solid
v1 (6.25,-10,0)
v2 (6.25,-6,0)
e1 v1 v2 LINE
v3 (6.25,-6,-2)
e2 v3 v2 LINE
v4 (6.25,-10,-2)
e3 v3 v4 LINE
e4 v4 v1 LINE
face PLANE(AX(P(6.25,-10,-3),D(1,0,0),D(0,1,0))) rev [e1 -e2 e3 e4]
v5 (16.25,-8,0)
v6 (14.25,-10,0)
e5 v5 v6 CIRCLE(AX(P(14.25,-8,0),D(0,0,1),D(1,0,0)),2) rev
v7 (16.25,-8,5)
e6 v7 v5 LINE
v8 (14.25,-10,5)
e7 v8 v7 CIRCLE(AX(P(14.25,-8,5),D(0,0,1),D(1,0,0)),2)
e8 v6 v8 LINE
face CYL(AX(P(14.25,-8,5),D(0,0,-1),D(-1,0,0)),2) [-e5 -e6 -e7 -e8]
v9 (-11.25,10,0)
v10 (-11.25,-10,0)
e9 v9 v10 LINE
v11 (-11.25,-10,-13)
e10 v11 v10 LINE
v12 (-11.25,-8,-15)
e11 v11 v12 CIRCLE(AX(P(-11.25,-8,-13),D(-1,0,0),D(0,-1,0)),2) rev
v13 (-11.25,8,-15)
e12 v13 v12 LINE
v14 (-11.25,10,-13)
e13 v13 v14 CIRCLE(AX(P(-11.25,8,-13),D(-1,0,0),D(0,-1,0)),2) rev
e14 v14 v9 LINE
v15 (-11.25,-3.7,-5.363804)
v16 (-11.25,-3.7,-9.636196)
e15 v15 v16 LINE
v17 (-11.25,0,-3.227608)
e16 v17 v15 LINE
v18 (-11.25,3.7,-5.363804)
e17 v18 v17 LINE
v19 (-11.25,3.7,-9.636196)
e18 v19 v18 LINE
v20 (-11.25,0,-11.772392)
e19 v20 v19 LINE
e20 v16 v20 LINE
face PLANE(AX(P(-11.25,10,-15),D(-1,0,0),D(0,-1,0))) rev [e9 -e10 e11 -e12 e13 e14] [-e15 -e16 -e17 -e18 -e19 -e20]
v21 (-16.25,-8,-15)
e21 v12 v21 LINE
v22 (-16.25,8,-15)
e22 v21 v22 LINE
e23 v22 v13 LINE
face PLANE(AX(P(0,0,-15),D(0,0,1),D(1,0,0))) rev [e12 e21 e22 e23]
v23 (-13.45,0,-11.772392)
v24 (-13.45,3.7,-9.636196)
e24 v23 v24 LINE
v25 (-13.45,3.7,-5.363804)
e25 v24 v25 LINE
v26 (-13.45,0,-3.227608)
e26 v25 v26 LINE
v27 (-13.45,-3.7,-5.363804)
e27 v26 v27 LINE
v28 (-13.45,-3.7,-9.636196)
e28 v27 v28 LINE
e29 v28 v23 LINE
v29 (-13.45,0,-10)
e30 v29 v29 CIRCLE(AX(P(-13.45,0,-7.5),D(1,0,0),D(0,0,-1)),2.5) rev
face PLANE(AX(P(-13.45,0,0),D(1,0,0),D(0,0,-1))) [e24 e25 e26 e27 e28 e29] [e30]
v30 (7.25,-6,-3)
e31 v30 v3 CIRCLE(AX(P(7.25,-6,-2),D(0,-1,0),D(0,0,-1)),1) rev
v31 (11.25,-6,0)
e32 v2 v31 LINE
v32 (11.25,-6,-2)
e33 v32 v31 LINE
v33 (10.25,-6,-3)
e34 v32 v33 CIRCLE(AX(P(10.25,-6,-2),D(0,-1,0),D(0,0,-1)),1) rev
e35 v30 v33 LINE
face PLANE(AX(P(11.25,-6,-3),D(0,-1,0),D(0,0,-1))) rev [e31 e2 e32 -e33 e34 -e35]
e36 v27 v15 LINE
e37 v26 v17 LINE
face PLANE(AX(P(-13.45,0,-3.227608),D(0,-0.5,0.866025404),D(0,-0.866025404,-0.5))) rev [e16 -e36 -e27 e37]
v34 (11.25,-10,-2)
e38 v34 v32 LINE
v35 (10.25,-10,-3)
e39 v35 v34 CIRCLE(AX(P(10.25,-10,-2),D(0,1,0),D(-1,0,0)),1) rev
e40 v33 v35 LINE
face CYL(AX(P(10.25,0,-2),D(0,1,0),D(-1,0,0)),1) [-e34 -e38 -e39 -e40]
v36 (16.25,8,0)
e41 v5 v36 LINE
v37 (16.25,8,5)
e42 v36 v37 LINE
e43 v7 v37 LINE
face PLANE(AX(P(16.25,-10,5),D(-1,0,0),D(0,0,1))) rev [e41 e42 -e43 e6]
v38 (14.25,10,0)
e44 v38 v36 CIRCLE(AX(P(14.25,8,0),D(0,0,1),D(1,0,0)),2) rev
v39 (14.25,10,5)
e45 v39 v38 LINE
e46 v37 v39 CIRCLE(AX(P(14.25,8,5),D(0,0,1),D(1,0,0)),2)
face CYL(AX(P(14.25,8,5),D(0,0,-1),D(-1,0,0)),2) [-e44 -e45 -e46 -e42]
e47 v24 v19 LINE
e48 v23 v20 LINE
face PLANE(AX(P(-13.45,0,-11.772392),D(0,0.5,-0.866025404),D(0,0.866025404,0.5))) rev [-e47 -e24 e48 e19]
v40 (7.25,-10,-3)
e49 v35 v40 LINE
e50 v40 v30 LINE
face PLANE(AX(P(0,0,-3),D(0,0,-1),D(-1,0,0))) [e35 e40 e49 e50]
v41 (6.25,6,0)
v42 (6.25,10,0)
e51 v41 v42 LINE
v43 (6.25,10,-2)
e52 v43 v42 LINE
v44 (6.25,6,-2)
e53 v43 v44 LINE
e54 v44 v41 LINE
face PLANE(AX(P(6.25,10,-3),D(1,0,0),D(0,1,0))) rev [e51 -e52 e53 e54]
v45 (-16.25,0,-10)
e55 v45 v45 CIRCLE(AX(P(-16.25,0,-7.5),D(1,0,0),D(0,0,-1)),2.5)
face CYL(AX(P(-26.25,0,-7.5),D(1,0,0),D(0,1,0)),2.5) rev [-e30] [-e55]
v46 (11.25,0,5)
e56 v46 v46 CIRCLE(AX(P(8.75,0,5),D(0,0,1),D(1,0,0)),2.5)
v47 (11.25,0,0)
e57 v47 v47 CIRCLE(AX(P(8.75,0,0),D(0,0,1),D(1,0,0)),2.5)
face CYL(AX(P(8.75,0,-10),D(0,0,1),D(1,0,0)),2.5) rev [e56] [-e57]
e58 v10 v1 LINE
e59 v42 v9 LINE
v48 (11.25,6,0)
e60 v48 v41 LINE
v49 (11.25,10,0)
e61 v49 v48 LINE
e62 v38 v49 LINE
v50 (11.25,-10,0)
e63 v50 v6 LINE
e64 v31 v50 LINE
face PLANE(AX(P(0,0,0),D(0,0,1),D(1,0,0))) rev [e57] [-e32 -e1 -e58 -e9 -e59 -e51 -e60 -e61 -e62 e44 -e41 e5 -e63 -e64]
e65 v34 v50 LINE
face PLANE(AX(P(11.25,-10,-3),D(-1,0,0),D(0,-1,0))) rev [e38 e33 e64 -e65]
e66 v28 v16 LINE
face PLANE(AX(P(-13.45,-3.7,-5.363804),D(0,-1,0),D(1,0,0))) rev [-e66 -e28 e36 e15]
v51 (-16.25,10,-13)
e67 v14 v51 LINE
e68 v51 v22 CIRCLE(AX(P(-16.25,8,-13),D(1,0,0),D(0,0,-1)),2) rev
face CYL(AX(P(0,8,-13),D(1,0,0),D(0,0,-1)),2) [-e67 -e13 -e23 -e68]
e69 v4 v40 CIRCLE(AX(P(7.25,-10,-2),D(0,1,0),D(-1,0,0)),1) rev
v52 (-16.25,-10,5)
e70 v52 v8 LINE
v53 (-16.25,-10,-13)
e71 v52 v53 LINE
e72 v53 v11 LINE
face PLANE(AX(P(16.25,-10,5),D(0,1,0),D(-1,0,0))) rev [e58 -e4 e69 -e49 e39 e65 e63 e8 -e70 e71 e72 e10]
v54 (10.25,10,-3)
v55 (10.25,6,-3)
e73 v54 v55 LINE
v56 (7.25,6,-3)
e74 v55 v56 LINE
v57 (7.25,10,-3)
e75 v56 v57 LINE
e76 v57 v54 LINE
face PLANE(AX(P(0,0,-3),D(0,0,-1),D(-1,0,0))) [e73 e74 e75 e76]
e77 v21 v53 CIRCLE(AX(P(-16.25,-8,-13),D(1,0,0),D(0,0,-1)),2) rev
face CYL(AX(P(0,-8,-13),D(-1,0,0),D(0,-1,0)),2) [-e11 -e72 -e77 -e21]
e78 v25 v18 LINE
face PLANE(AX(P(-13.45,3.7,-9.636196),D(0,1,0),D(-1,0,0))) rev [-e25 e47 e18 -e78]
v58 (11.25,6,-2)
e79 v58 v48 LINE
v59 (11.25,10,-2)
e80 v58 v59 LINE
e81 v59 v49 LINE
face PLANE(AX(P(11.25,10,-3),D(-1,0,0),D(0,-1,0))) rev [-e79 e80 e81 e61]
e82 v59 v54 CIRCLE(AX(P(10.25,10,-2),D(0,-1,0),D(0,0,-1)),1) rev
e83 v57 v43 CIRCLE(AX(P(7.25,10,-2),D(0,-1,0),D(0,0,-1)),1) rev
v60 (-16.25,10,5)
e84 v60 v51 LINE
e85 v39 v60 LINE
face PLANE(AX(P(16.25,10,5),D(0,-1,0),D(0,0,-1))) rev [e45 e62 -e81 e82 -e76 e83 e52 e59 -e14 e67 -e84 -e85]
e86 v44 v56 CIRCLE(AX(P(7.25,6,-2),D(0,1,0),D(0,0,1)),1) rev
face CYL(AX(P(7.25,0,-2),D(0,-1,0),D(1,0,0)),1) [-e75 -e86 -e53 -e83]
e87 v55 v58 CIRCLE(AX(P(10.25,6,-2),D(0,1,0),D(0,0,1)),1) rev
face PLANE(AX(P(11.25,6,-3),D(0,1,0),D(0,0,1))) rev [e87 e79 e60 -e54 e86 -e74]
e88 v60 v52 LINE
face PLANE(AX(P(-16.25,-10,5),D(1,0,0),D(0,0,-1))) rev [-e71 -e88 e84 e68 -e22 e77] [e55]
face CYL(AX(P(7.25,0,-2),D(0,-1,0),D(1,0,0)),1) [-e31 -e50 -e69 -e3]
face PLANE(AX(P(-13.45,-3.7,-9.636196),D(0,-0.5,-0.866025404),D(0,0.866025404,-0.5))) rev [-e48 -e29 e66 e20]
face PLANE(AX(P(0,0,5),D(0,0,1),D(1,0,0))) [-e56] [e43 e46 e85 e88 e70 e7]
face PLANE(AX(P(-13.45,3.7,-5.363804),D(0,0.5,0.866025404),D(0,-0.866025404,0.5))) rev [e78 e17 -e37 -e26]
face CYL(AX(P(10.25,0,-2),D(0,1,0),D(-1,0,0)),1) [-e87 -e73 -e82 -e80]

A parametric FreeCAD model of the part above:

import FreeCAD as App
import Part
import Sketcher

V = App.Vector
Q = App.Units.Quantity


def edges_at(feature, points):
    """Names of the edges that pass closest to the given points."""
    edges = feature.Shape.Edges
    near = lambda p: min(range(len(edges)), key=lambda i: edges[i].distToShape(Part.Vertex(*p))[0])
    return sorted({f"Edge{near(p) + 1}" for p in points})


def add_polygon(sketch, points):
    """Adds a closed chain of lines whose ends are joined by coincident constraints."""
    first, n = sketch.GeometryCount, len(points)
    for a, b in zip(points, points[1:] + points[:1]):
        sketch.addGeometry(Part.LineSegment(App.Vector(*a, 0), App.Vector(*b, 0)), False)
    for i in range(n):
        sketch.addConstraint(Sketcher.Constraint("Coincident", first + i, 2, first + (i + 1) % n, 1))

doc = App.newDocument("Part")
params = doc.addObject("Spreadsheet::Sheet", "Params")
for row, (alias, value) in enumerate([
    ("sketch1_height", "20 mm"),
    ("sketch1_width", "32.5 mm"),
    ("pad1_length", "5 mm"),
    ("sketch2_width", "5 mm"),
    ("sketch2_height", "20 mm"),
    ("pad2_length", "15 mm"),
    ("sketch3_diameter", "5 mm"),
    ("pocket1_length", "15 mm"),
    ("sketch4_diameter", "5 mm"),
    ("pocket2_length", "15 mm"),
    ("sketch5_width", "5 mm"),
    ("sketch5_height", "4 mm"),
    ("pad3_length", "3 mm"),
    ("fillet_radius", "1 mm"),
    ("fillet2_radius", "2 mm"),
    ("pocket3_length", "2.2 mm"),
], start=1):
    params.set(f"A{row}", alias)
    params.set(f"B{row}", "=" + value)
    params.setAlias(f"B{row}", alias)

body = doc.addObject("PartDesign::Body", "Body")

# Sketch on XY plane
sketch1 = body.newObject("Sketcher::SketchObject", "Sketch")
sketch1.AttachmentSupport = (doc.getObject("XY_Plane"), [""])
sketch1.MapMode = "FlatFace"
add_polygon(sketch1, [(-16, 10), (-16, -10), (16, -10), (16, 10)])  # lines 0-3
sketch1.addConstraint(Sketcher.Constraint("Vertical", 0))
sketch1.addConstraint(Sketcher.Constraint("Horizontal", 1))
sketch1.addConstraint(Sketcher.Constraint("Vertical", 2))
sketch1.addConstraint(Sketcher.Constraint("Horizontal", 3))
sketch1.addConstraint(Sketcher.Constraint("Symmetric", 0, 2, 2, 2, -1, 1))
sketch1.addConstraint(Sketcher.Constraint("DistanceY", 0, 2, 0, 1, Q("20 mm")))
sketch1.addConstraint(Sketcher.Constraint("DistanceX", 1, 1, 1, 2, Q("32.5 mm")))
sketch1.setExpression("Constraints[9]", "Params.sketch1_height")
sketch1.setExpression("Constraints[10]", "Params.sketch1_width")
pad1 = body.newObject("PartDesign::Pad", "Pad")
pad1.Profile = sketch1
pad1.setExpression("Length", "Params.pad1_length")

# Sketch on XY plane
sketch2 = body.newObject("Sketcher::SketchObject", "Sketch001")
sketch2.AttachmentSupport = (doc.getObject("XY_Plane"), [""])
sketch2.MapMode = "FlatFace"
add_polygon(sketch2, [(-11, 10), (-11, -10), (-16, -10), (-16, 10)])  # lines 0-3
sketch2.addConstraint(Sketcher.Constraint("Vertical", 0))
sketch2.addConstraint(Sketcher.Constraint("Horizontal", 1))
sketch2.addConstraint(Sketcher.Constraint("Vertical", 2))
sketch2.addConstraint(Sketcher.Constraint("Horizontal", 3))
sketch2.addConstraint(Sketcher.Constraint("DistanceX", 1, 2, 1, 1, Q("5 mm")))
sketch2.addConstraint(Sketcher.Constraint("DistanceY", 0, 2, 0, 1, Q("20 mm")))
sketch2.addConstraint(Sketcher.Constraint("DistanceY", 0, 2, -1, 1, Q("10 mm")))
sketch2.addConstraint(Sketcher.Constraint("DistanceX", 0, 2, -1, 1, Q("11.25 mm")))
sketch2.setExpression("Constraints[8]", "Params.sketch2_width")
sketch2.setExpression("Constraints[9]", "Params.sketch2_height")
pad2 = body.newObject("PartDesign::Pad", "Pad001")
pad2.Profile = sketch2
pad2.setExpression("Length", "Params.pad2_length")
pad2.Reversed = True

# Sketch on YZ plane
sketch3 = body.newObject("Sketcher::SketchObject", "Sketch002")
sketch3.AttachmentSupport = (doc.getObject("YZ_Plane"), [""])
sketch3.MapMode = "FlatFace"
sketch3.AttachmentOffset = App.Placement(V(0, 0, -11.25), App.Rotation())
sketch3.addGeometry(Part.Circle(V(0, -7.5, 0), V(0, 0, 1), 2.5), False)
sketch3.addConstraint(Sketcher.Constraint("PointOnObject", 0, 3, -2))
sketch3.addConstraint(Sketcher.Constraint("Diameter", 0, Q("5 mm")))
sketch3.addConstraint(Sketcher.Constraint("DistanceY", 0, 3, -1, 1, Q("7.5 mm")))
sketch3.setExpression("Constraints[1]", "Params.sketch3_diameter")
pocket1 = body.newObject("PartDesign::Pocket", "Pocket")
pocket1.Profile = sketch3
pocket1.setExpression("Length", "Params.pocket1_length")

# Sketch on XY plane
sketch4 = body.newObject("Sketcher::SketchObject", "Sketch003")
sketch4.AttachmentSupport = (doc.getObject("XY_Plane"), [""])
sketch4.MapMode = "FlatFace"
sketch4.AttachmentOffset = App.Placement(V(0, 0, 5), App.Rotation())
sketch4.addGeometry(Part.Circle(V(8.8, 0, 0), V(0, 0, 1), 2.5), False)
sketch4.addConstraint(Sketcher.Constraint("PointOnObject", 0, 3, -1))
sketch4.addConstraint(Sketcher.Constraint("Diameter", 0, Q("5 mm")))
sketch4.addConstraint(Sketcher.Constraint("DistanceX", -1, 1, 0, 3, Q("8.75 mm")))
sketch4.setExpression("Constraints[1]", "Params.sketch4_diameter")
pocket2 = body.newObject("PartDesign::Pocket", "Pocket001")
pocket2.Profile = sketch4
pocket2.setExpression("Length", "Params.pocket2_length")

# Sketch on XY plane
sketch5 = body.newObject("Sketcher::SketchObject", "Sketch004")
sketch5.AttachmentSupport = (doc.getObject("XY_Plane"), [""])
sketch5.MapMode = "FlatFace"
add_polygon(sketch5, [(11.2, 10), (11.2, 6), (6.2, 6), (6.2, 10)])  # lines 0-3
add_polygon(sketch5, [(11.2, -6), (11.2, -10), (6.2, -10), (6.2, -6)])  # lines 4-7
sketch5.addConstraint(Sketcher.Constraint("Vertical", 0))
sketch5.addConstraint(Sketcher.Constraint("Horizontal", 1))
sketch5.addConstraint(Sketcher.Constraint("Vertical", 2))
sketch5.addConstraint(Sketcher.Constraint("Horizontal", 3))
sketch5.addConstraint(Sketcher.Constraint("Vertical", 4))
sketch5.addConstraint(Sketcher.Constraint("Horizontal", 5))
sketch5.addConstraint(Sketcher.Constraint("Vertical", 6))
sketch5.addConstraint(Sketcher.Constraint("Horizontal", 7))
sketch5.addConstraint(Sketcher.Constraint("Symmetric", 3, 2, 4, 2, -1))
sketch5.addConstraint(Sketcher.Constraint("Symmetric", 1, 2, 6, 2, -1))
sketch5.addConstraint(Sketcher.Constraint("DistanceX", 1, 2, 1, 1, Q("5 mm")))
sketch5.addConstraint(Sketcher.Constraint("DistanceY", 0, 2, 0, 1, Q("4 mm")))
sketch5.addConstraint(Sketcher.Constraint("DistanceY", -1, 1, 0, 2, Q("6 mm")))
sketch5.addConstraint(Sketcher.Constraint("DistanceX", -1, 1, 0, 2, Q("11.25 mm")))
sketch5.setExpression("Constraints[18]", "Params.sketch5_width")
sketch5.setExpression("Constraints[19]", "Params.sketch5_height")
pad3 = body.newObject("PartDesign::Pad", "Pad002")
pad3.Profile = sketch5
pad3.setExpression("Length", "Params.pad3_length")
pad3.Reversed = True
doc.recompute()

fillet = body.newObject("PartDesign::Fillet", "Fillet")
fillet.Base = (pad3, edges_at(pad3, [
    (11.25, 8, -3),
    (6.25, 8, -3),
    (6.25, -8, -3),
    (11.25, -8, -3),
]))
fillet.setExpression("Radius", "Params.fillet_radius")
doc.recompute()

fillet2 = body.newObject("PartDesign::Fillet", "Fillet001")
fillet2.Base = (fillet, edges_at(fillet, [
    (-13.75, 10, -15),
    (-13.75, -10, -15),
    (16.25, 10, 2.5),
    (16.25, -10, 2.5),
]))
fillet2.setExpression("Radius", "Params.fillet2_radius")

# Sketch on YZ plane
sketch6 = body.newObject("Sketcher::SketchObject", "Sketch005")
sketch6.AttachmentSupport = (doc.getObject("YZ_Plane"), [""])
sketch6.MapMode = "FlatFace"
sketch6.AttachmentOffset = App.Placement(V(0, 0, -11.25), App.Rotation())
add_polygon(sketch6, [(0, -3.2), (-3.7, -5.4), (-3.7, -9.6), (0, -11.8), (3.7, -9.6), (3.7, -5.4)])  # lines 0-5
sketch6.addConstraint(Sketcher.Constraint("Vertical", 1))
sketch6.addConstraint(Sketcher.Constraint("Vertical", 4))
sketch6.addConstraint(Sketcher.Constraint("Symmetric", 1, 2, 3, 2, -2))
sketch6.addConstraint(Sketcher.Constraint("PointOnObject", 2, 2, -2))
sketch6.addConstraint(Sketcher.Constraint("PointOnObject", 5, 2, -2))
sketch6.addConstraint(Sketcher.Constraint("Parallel", 0, 3))
sketch6.addConstraint(Sketcher.Constraint("Parallel", 2, 5))
sketch6.addConstraint(Sketcher.Constraint("Angle", 0, Q("-150 deg")))
sketch6.addConstraint(Sketcher.Constraint("DistanceX", 0, 2, -1, 1, Q("3.7 mm")))
sketch6.addConstraint(Sketcher.Constraint("DistanceY", 1, 2, 1, 1, Q("4.272392 mm")))
sketch6.addConstraint(Sketcher.Constraint("DistanceY", 2, 2, -1, 1, Q("11.772392 mm")))
pocket3 = body.newObject("PartDesign::Pocket", "Pocket002")
pocket3.Profile = sketch6
pocket3.setExpression("Length", "Params.pocket3_length")

doc.recompute()
